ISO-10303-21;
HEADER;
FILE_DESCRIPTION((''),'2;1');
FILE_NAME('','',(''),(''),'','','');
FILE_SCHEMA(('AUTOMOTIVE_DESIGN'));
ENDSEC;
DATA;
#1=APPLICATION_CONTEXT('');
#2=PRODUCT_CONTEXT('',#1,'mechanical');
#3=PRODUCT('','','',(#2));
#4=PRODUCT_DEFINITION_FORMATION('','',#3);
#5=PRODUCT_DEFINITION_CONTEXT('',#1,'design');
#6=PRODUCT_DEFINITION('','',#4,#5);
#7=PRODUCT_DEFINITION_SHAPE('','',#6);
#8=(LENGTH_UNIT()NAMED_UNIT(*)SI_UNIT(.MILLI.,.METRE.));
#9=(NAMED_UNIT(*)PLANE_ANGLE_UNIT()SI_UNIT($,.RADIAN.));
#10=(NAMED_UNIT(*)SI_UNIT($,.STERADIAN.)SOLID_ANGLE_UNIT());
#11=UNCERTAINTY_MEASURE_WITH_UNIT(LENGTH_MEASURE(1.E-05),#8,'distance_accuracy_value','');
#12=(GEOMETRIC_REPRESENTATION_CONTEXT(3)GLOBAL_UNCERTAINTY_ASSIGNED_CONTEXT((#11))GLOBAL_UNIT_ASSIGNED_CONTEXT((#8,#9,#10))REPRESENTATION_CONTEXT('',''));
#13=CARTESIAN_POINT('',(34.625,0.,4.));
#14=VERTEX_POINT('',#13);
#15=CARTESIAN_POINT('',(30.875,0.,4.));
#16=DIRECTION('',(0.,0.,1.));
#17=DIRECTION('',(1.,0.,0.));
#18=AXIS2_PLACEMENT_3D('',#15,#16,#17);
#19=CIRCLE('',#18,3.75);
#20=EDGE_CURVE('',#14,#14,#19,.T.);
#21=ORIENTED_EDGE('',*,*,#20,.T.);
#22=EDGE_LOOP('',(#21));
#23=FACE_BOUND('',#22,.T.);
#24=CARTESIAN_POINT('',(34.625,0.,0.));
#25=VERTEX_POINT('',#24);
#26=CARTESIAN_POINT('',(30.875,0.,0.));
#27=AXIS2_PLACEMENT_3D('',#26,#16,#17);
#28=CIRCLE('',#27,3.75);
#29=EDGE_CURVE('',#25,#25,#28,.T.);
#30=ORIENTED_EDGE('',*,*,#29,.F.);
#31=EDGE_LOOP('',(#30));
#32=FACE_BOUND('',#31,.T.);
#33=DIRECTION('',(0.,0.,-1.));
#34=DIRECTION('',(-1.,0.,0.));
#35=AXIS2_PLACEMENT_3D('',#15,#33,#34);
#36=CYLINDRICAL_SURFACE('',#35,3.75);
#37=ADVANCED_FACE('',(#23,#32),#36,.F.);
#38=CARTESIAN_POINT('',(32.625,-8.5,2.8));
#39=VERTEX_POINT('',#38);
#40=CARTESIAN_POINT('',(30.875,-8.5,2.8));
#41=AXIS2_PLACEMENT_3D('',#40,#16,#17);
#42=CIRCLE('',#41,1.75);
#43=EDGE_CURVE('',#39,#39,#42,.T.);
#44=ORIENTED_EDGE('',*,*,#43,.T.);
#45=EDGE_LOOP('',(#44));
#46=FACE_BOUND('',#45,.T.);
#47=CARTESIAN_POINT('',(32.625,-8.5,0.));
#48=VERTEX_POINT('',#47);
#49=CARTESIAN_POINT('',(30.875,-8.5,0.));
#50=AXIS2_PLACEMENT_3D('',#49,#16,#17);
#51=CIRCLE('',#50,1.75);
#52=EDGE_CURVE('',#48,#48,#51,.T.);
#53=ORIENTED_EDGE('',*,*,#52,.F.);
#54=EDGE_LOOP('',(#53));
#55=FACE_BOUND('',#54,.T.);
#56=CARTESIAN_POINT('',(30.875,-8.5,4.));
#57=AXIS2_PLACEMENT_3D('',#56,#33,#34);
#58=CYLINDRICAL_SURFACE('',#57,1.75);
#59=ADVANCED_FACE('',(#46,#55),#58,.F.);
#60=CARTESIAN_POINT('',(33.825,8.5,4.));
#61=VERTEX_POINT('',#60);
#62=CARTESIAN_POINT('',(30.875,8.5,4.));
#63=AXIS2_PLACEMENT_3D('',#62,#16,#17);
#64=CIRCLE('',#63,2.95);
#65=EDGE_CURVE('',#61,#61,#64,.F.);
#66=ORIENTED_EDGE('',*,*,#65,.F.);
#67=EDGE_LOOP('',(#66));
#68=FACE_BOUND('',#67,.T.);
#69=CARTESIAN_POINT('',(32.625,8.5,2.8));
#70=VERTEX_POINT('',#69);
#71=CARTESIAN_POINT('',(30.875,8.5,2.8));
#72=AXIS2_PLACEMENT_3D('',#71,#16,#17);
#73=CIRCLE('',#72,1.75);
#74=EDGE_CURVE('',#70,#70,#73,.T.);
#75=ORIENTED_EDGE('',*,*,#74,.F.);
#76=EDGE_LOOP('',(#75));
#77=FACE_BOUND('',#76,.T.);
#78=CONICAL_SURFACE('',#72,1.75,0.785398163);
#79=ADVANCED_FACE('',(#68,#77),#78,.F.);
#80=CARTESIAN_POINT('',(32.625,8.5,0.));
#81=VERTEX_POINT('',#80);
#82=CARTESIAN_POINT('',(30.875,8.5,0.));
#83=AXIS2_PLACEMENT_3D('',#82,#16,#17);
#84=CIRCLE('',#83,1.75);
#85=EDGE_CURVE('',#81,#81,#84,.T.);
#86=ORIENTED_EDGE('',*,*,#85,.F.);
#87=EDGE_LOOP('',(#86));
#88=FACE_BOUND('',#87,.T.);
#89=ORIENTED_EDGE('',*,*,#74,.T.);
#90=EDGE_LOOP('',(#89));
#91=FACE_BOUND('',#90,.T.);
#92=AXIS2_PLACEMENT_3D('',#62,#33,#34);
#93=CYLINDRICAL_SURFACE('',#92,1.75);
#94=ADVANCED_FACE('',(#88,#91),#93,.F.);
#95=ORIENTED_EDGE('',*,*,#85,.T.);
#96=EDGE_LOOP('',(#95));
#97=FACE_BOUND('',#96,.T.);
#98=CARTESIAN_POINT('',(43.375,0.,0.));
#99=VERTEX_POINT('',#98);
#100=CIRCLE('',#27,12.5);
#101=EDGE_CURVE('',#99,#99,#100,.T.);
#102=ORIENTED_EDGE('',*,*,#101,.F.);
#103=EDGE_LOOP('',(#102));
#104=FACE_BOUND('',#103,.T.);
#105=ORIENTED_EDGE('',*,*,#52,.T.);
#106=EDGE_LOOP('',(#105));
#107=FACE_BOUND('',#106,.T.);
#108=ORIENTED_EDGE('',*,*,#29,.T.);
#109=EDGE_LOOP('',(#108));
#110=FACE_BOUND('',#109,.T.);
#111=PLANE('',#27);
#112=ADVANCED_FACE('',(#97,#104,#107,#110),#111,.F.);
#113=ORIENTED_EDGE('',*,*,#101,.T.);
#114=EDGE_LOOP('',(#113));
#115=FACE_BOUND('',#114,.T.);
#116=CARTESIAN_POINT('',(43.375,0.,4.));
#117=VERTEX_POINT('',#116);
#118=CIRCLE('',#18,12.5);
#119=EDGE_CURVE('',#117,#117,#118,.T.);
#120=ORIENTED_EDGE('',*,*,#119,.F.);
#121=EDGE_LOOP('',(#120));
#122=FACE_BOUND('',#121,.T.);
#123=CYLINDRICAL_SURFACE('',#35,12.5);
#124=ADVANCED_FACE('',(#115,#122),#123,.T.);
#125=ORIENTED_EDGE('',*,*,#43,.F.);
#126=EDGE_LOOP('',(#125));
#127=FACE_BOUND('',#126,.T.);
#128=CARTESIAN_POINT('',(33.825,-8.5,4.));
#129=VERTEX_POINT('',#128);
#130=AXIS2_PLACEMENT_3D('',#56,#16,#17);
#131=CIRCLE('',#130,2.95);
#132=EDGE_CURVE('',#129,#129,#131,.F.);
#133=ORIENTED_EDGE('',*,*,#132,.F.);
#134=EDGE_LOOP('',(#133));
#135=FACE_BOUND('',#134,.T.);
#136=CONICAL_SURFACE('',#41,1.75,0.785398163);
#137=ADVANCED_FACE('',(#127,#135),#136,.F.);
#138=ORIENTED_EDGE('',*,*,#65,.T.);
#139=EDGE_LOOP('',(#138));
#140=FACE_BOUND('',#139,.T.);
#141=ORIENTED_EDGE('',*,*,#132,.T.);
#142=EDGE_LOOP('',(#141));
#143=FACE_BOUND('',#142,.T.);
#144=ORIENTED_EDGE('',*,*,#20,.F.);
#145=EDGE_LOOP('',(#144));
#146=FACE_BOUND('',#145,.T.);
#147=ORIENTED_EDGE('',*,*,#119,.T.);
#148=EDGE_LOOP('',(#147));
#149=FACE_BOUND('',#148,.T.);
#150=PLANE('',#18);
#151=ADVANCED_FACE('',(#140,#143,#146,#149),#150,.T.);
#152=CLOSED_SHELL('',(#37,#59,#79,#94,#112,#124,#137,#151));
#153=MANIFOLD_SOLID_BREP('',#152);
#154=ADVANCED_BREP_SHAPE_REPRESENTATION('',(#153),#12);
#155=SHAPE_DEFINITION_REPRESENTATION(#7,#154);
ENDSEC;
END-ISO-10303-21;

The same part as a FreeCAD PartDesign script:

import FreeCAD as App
import Part
import Sketcher

V = App.Vector
Q = App.Units.Quantity


def edges_at(feature, points):
    """Names of the edges that pass closest to the given points."""
    edges = feature.Shape.Edges
    near = lambda p: min(range(len(edges)), key=lambda i: edges[i].distToShape(Part.Vertex(*p))[0])
    return sorted({f"Edge{near(p) + 1}" for p in points})

doc = App.newDocument("Part")
body = doc.addObject("PartDesign::Body", "Body")

# Sketch on XY plane
sketch1 = body.newObject("Sketcher::SketchObject", "Sketch")
sketch1.AttachmentSupport = (doc.getObject("XY_Plane"), [""])
sketch1.MapMode = "FlatFace"
sketch1.addGeometry(Part.Circle(V(30.875, 0, 0), V(0, 0, 1), 12.5), False)
sketch1.addGeometry(Part.Circle(V(30.875, -8.5, 0), V(0, 0, 1), 1.75), False)
sketch1.addGeometry(Part.Circle(V(30.875, 0, 0), V(0, 0, 1), 3.75), False)
sketch1.addGeometry(Part.Circle(V(30.875, 8.5, 0), V(0, 0, 1), 1.75), False)
sketch1.addConstraint(Sketcher.Constraint("Coincident", 2, 3, 0, 3))
sketch1.addConstraint(Sketcher.Constraint("Equal", 1, 3))
sketch1.addConstraint(Sketcher.Constraint("Symmetric", 1, 3, 3, 3, -1))
sketch1.addConstraint(Sketcher.Constraint("PointOnObject", 0, 3, -1))
sketch1.addConstraint(Sketcher.Constraint("Vertical", 0, 3, 1, 3))
sketch1.addConstraint(Sketcher.Constraint("Diameter", 0, Q("25 mm")))
sketch1.addConstraint(Sketcher.Constraint("Diameter", 1, Q("3.5 mm")))
sketch1.addConstraint(Sketcher.Constraint("Diameter", 2, Q("7.5 mm")))
sketch1.addConstraint(Sketcher.Constraint("DistanceY", 1, 3, 3, 3, Q("17 mm")))
sketch1.addConstraint(Sketcher.Constraint("DistanceX", -1, 1, 0, 3, Q("30.875 mm")))
pad1 = body.newObject("PartDesign::Pad", "Pad")
pad1.Profile = sketch1
pad1.Length = 4
doc.recompute()

chamfer = body.newObject("PartDesign::Chamfer", "Chamfer")
chamfer.Base = (pad1, edges_at(pad1, [(29.125, 8.5, 4), (29.125, -8.5, 4)]))
chamfer.Size = 1.2

doc.recompute()
